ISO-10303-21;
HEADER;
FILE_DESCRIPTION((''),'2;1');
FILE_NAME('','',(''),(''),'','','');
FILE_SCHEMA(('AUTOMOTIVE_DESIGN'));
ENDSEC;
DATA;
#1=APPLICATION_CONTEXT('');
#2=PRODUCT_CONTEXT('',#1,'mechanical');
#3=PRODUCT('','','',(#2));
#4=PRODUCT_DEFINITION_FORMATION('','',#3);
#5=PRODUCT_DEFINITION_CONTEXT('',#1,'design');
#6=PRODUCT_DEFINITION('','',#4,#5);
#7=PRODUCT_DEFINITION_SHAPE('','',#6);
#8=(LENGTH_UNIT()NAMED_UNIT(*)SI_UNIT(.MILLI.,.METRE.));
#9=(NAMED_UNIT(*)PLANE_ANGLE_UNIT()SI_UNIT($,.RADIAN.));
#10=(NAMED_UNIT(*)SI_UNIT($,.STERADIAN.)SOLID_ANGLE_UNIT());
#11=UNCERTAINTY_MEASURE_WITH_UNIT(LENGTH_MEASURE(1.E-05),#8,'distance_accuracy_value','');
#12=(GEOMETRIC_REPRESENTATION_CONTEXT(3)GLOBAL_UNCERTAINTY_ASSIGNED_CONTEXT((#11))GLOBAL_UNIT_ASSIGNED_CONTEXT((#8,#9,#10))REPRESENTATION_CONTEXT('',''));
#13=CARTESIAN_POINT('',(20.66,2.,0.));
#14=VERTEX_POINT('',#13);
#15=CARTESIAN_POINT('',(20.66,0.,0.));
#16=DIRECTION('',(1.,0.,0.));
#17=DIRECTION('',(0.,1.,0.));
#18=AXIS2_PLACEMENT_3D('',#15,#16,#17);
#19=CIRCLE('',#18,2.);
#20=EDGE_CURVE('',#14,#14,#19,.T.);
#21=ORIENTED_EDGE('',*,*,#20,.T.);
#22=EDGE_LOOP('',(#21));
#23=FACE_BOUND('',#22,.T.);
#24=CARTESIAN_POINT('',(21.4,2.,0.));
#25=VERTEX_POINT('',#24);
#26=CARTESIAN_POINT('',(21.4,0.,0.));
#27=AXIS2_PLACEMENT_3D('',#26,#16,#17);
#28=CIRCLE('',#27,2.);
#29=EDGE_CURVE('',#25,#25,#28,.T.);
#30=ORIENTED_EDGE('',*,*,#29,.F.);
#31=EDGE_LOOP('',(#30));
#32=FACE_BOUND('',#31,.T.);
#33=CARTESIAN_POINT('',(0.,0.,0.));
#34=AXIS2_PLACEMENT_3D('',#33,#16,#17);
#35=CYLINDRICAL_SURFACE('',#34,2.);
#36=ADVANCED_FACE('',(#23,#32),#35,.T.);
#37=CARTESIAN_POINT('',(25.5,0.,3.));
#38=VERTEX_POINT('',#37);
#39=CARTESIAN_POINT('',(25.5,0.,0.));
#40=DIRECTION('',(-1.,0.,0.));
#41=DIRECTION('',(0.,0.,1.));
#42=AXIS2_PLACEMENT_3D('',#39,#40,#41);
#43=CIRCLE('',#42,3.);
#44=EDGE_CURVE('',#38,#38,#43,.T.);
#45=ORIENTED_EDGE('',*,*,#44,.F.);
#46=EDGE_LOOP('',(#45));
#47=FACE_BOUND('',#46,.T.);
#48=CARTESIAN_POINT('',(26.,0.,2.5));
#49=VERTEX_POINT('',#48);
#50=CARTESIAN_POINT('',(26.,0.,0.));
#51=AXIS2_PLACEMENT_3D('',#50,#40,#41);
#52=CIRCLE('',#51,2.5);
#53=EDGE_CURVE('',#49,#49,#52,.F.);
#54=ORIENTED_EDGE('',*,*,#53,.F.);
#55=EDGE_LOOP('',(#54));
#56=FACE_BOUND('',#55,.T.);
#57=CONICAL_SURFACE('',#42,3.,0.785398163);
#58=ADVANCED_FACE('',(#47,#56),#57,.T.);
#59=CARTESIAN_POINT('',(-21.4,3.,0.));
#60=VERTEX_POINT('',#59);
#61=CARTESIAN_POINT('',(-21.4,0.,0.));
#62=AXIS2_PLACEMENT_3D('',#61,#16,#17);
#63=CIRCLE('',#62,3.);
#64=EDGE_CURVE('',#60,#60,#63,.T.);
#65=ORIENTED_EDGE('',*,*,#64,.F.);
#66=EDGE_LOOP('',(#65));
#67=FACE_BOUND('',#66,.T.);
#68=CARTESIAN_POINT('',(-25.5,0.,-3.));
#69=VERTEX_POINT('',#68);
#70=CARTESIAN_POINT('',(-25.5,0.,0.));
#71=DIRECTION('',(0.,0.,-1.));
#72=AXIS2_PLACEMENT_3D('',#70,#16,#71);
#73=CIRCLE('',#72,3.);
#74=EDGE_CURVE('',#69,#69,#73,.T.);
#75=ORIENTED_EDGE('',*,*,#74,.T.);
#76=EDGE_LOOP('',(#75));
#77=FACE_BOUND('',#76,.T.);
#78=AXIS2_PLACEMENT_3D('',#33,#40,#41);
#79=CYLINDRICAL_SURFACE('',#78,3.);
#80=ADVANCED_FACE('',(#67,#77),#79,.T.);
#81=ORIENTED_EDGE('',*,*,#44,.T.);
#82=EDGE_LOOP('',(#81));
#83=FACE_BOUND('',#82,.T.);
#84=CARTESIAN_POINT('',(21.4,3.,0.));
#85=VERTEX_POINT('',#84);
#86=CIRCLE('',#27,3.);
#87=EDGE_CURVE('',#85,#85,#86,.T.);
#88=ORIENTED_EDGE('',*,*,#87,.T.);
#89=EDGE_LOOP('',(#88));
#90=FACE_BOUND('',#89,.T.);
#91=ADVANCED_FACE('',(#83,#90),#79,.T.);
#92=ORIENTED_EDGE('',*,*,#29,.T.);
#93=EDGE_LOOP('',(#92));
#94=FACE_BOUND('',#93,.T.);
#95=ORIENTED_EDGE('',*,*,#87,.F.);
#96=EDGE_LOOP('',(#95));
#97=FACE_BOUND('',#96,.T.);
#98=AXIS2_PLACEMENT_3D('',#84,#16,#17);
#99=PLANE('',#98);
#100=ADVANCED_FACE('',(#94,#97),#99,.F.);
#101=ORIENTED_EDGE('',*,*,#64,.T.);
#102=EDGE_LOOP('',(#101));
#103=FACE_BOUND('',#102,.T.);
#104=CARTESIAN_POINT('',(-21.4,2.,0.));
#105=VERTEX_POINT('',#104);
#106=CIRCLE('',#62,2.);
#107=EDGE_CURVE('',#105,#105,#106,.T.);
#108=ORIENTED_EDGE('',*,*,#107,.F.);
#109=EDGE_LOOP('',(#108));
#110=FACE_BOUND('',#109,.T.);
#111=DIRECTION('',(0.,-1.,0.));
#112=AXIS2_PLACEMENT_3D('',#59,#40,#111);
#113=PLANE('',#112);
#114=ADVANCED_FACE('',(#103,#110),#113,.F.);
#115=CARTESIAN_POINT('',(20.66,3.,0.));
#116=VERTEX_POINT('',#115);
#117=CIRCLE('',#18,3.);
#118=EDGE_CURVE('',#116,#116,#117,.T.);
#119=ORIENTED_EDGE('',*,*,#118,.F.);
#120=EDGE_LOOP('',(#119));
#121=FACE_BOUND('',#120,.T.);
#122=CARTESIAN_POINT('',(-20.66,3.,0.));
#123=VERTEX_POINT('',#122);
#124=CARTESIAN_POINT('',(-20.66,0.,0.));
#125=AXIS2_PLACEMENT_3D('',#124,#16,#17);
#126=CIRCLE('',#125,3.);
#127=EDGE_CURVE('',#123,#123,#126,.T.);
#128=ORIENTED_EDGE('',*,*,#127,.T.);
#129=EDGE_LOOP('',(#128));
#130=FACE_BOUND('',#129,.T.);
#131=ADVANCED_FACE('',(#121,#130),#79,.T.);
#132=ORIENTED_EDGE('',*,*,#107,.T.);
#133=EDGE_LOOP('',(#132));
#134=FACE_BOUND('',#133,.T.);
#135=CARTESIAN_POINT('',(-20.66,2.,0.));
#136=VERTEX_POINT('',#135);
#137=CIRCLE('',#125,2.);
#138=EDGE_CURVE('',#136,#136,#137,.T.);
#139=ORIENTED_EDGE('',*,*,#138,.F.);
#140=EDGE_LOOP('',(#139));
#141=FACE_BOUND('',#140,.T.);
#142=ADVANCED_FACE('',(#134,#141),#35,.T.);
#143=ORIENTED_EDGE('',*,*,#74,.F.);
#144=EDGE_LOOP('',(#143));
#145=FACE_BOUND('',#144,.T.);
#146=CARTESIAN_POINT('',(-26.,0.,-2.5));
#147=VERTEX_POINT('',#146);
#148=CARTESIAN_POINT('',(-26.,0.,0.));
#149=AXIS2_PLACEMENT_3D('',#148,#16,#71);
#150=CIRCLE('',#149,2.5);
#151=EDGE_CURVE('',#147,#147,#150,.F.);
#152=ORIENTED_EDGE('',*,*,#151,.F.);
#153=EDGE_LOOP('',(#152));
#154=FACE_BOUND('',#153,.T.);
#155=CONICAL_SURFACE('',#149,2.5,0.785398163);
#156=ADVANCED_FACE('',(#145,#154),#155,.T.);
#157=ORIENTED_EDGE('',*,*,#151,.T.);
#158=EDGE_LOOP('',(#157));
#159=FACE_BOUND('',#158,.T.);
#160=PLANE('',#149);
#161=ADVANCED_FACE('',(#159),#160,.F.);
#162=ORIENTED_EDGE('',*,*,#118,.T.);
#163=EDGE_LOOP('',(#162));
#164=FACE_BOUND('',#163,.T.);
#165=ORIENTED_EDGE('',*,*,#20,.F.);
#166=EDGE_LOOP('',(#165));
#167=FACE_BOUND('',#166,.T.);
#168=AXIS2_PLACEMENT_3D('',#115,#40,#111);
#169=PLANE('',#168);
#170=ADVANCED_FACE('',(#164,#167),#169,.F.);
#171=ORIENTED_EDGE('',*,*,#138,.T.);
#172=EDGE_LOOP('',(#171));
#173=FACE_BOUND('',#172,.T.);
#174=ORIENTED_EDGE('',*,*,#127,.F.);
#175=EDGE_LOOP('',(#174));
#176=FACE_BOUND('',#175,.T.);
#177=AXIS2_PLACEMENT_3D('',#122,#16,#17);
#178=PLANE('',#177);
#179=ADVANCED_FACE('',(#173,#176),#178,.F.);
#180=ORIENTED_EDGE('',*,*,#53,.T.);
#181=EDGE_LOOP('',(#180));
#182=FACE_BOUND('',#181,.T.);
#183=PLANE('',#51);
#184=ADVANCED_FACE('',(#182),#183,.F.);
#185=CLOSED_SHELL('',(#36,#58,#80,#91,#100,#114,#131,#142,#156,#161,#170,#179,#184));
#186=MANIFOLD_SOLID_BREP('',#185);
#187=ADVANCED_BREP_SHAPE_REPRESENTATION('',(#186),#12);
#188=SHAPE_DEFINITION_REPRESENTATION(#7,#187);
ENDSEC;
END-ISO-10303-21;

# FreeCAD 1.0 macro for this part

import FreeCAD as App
import Part
import Sketcher
from FreeCAD import Vector
Q = App.Units.Quantity


def edges_at(feature, points):
    """Names of the edges that pass closest to the given points."""
    edges = feature.Shape.Edges
    near = lambda p: min(range(len(edges)), key=lambda i: edges[i].distToShape(Part.Vertex(*p))[0])
    return sorted({f"Edge{near(p) + 1}" for p in points})

doc = App.newDocument("Part")
body = doc.addObject("PartDesign::Body", "Body")

# Sketch on XY plane
sketch1 = doc.addObject("Sketcher::SketchObject", "Sketch")
body.addObject(sketch1)
sketch1.AttachmentSupport = (doc.XY_Plane, [""])
sketch1.MapMode = "FlatFace"
sketch1.addGeometry([
    Part.LineSegment(Vector(-26, 3, 0), Vector(-26, 0, 0)),
    Part.LineSegment(Vector(-26, 0, 0), Vector(26, 0, 0)),
    Part.LineSegment(Vector(26, 0, 0), Vector(26, 3, 0)),
    Part.LineSegment(Vector(26, 3, 0), Vector(-26, 3, 0)),
], False)
sketch1.addConstraint([
    Sketcher.Constraint("Coincident", 0, 2, 1, 1),
    Sketcher.Constraint("Coincident", 1, 2, 2, 1),
    Sketcher.Constraint("Coincident", 2, 2, 3, 1),
    Sketcher.Constraint("Coincident", 3, 2, 0, 1),
    Sketcher.Constraint("Vertical", 0),
    Sketcher.Constraint("Horizontal", 1),
    Sketcher.Constraint("Vertical", 2),
    Sketcher.Constraint("Horizontal", 3),
    Sketcher.Constraint("Symmetric", 0, 2, 1, 2, -1, 1),
    Sketcher.Constraint("DistanceX", 1, 1, 1, 2, Q("52 mm")),
    Sketcher.Constraint("DistanceY", 0, 2, 0, 1, Q("3 mm")),
])
revolution = doc.addObject("PartDesign::Revolution", "Revolution")
body.addObject(revolution)
revolution.Profile = sketch1
revolution.ReferenceAxis = (sketch1, ["H_Axis"])
revolution.Angle = 360
doc.recompute()

chamfer = doc.addObject("PartDesign::Chamfer", "Chamfer")
body.addObject(chamfer)
chamfer.Base = (revolution, edges_at(revolution, [(26, 0, -3), (-26, 0, -3)]))
chamfer.Size = 0.5

# Sketch on XY plane
sketch2 = doc.addObject("Sketcher::SketchObject", "Sketch001")
body.addObject(sketch2)
sketch2.AttachmentSupport = (doc.XY_Plane, [""])
sketch2.MapMode = "FlatFace"
sketch2.addGeometry([
    Part.LineSegment(Vector(-21.4, 3, 0), Vector(-21.4, 2, 0)),  # 0
    Part.LineSegment(Vector(-21.4, 2, 0), Vector(-20.7, 2, 0)),  # 1
    Part.LineSegment(Vector(-20.7, 2, 0), Vector(-20.7, 3, 0)),  # 2
    Part.LineSegment(Vector(-20.7, 3, 0), Vector(-21.4, 3, 0)),  # 3
    Part.LineSegment(Vector(20.7, 3, 0), Vector(20.7, 2, 0)),  # 4
    Part.LineSegment(Vector(20.7, 2, 0), Vector(21.4, 2, 0)),  # 5
    Part.LineSegment(Vector(21.4, 2, 0), Vector(21.4, 3, 0)),  # 6
    Part.LineSegment(Vector(21.4, 3, 0), Vector(20.7, 3, 0)),  # 7
], False)
sketch2.addConstraint([
    Sketcher.Constraint("Coincident", 0, 2, 1, 1),
    Sketcher.Constraint("Coincident", 1, 2, 2, 1),
    Sketcher.Constraint("Coincident", 2, 2, 3, 1),
    Sketcher.Constraint("Coincident", 3, 2, 0, 1),
    Sketcher.Constraint("Coincident", 4, 2, 5, 1),
    Sketcher.Constraint("Coincident", 5, 2, 6, 1),
    Sketcher.Constraint("Coincident", 6, 2, 7, 1),
    Sketcher.Constraint("Coincident", 7, 2, 4, 1),
    Sketcher.Constraint("Vertical", 0),
    Sketcher.Constraint("Horizontal", 1),
    Sketcher.Constraint("Vertical", 2),
    Sketcher.Constraint("Horizontal", 3),
    Sketcher.Constraint("Vertical", 4),
    Sketcher.Constraint("Horizontal", 5),
    Sketcher.Constraint("Vertical", 6),
    Sketcher.Constraint("Horizontal", 7),
    Sketcher.Constraint("Symmetric", 1, 2, 4, 2, -2),
    Sketcher.Constraint("Symmetric", 3, 2, 6, 2, -2),
    Sketcher.Constraint("DistanceY", 0, 2, 0, 1, Q("1 mm")),
    Sketcher.Constraint("DistanceY", -1, 1, 0, 2, Q("2 mm")),
    Sketcher.Constraint("DistanceX", 1, 1, 1, 2, Q("0.74 mm")),
    Sketcher.Constraint("DistanceX", 0, 2, -1, 1, Q("21.4 mm")),
])
groove = doc.addObject("PartDesign::Groove", "Groove")
body.addObject(groove)
groove.Profile = sketch2
groove.ReferenceAxis = (sketch2, ["H_Axis"])
groove.Angle = 360

doc.recompute()
